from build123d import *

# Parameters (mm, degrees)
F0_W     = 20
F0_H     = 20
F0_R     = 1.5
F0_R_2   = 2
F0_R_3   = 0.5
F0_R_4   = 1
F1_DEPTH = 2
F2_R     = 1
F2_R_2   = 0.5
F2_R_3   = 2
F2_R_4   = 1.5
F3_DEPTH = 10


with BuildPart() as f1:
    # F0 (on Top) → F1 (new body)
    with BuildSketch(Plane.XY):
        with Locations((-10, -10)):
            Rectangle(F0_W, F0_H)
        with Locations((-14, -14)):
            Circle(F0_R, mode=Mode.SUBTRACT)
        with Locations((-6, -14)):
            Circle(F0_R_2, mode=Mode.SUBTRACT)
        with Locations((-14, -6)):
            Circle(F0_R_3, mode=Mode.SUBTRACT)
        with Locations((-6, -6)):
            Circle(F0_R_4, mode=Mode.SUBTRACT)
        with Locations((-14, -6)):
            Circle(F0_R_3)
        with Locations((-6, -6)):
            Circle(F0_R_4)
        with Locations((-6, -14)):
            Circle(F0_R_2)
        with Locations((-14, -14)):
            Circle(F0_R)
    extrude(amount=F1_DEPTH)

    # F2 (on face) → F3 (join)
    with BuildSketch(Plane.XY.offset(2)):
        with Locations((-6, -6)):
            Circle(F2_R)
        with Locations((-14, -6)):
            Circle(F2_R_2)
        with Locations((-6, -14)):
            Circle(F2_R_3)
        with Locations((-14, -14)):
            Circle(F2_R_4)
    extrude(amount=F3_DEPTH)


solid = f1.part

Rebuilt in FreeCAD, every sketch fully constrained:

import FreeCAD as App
import Part
import Sketcher

V = App.Vector
Q = App.Units.Quantity


def add_polygon(sketch, points):
    """Adds a closed chain of lines whose ends are joined by coincident constraints."""
    first, n = sketch.GeometryCount, len(points)
    for a, b in zip(points, points[1:] + points[:1]):
        sketch.addGeometry(Part.LineSegment(App.Vector(*a, 0), App.Vector(*b, 0)), False)
    for i in range(n):
        sketch.addConstraint(Sketcher.Constraint("Coincident", first + i, 2, first + (i + 1) % n, 1))

doc = App.newDocument("Part")
body = doc.addObject("PartDesign::Body", "Body")

sketch1 = doc.addObject("Sketcher::SketchObject", "Sketch")
body.addObject(sketch1)
sketch1.AttachmentSupport = (doc.XY_Plane, [""])
sketch1.MapMode = "FlatFace"
add_polygon(sketch1, [(-20, 0), (-20, -20), (0, -20), (0, 0)])
sketch1.addConstraint(Sketcher.Constraint("Vertical", 0))
sketch1.addConstraint(Sketcher.Constraint("Horizontal", 1))
sketch1.addConstraint(Sketcher.Constraint("Vertical", 2))
sketch1.addConstraint(Sketcher.Constraint("Horizontal", 3))
sketch1.addConstraint(Sketcher.Constraint("Coincident", 2, 2, -1, 1))
sketch1.addConstraint(Sketcher.Constraint("Equal", 3, 0))
sketch1.addConstraint(Sketcher.Constraint("DistanceX", 1, 1, 1, 2, Q("20 mm")))
pad1 = doc.addObject("PartDesign::Pad", "Pad")
body.addObject(pad1)
pad1.Profile = sketch1
pad1.Length = 2

sketch2 = doc.addObject("Sketcher::SketchObject", "Sketch001")
body.addObject(sketch2)
sketch2.AttachmentSupport = (doc.XY_Plane, [""])
sketch2.MapMode = "FlatFace"
sketch2.AttachmentOffset = App.Placement(V(0, 0, 2), App.Rotation())
sketch2.addGeometry(Part.Circle(V(-6, -6, 0), V(0, 0, 1), 1), False)
sketch2.addGeometry(Part.Circle(V(-14, -6, 0), V(0, 0, 1), 0.5), False)
sketch2.addGeometry(Part.Circle(V(-6, -14, 0), V(0, 0, 1), 2), False)
sketch2.addGeometry(Part.Circle(V(-14, -14, 0), V(0, 0, 1), 1.5), False)
sketch2.addConstraint(Sketcher.Constraint("Horizontal", 0, 3, 1, 3))
sketch2.addConstraint(Sketcher.Constraint("Horizontal", 2, 3, 3, 3))
sketch2.addConstraint(Sketcher.Constraint("Vertical", 0, 3, 2, 3))
sketch2.addConstraint(Sketcher.Constraint("Vertical", 1, 3, 3, 3))
sketch2.addConstraint(Sketcher.Constraint("Diameter", 0, Q("2 mm")))
sketch2.addConstraint(Sketcher.Constraint("Diameter", 1, Q("1 mm")))
sketch2.addConstraint(Sketcher.Constraint("Diameter", 2, Q("4 mm")))
sketch2.addConstraint(Sketcher.Constraint("Diameter", 3, Q("3 mm")))
sketch2.addConstraint(Sketcher.Constraint("DistanceX", 0, 3, -1, 1, Q("6 mm")))
sketch2.addConstraint(Sketcher.Constraint("DistanceY", 0, 3, -1, 1, Q("6 mm")))
sketch2.addConstraint(Sketcher.Constraint("DistanceX", 1, 3, -1, 1, Q("14 mm")))
sketch2.addConstraint(Sketcher.Constraint("DistanceY", 2, 3, -1, 1, Q("14 mm")))
pad2 = doc.addObject("PartDesign::Pad", "Pad001")
body.addObject(pad2)
pad2.Profile = sketch2
pad2.Length = 10

doc.recompute()
